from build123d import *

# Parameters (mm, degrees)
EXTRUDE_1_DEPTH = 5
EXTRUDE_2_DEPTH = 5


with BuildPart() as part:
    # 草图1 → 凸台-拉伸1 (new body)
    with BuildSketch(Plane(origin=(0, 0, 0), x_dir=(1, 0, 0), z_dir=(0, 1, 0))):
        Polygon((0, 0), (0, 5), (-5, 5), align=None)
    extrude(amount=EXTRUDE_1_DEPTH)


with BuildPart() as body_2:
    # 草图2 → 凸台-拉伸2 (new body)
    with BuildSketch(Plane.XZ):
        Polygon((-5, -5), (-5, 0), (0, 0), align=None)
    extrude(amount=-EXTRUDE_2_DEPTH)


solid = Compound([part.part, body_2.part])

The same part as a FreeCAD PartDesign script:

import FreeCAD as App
import Part
import Sketcher


def add_polygon(sketch, points):
    """Adds a closed chain of lines whose ends are joined by coincident constraints."""
    first, n = sketch.GeometryCount, len(points)
    for a, b in zip(points, points[1:] + points[:1]):
        sketch.addGeometry(Part.LineSegment(App.Vector(*a, 0), App.Vector(*b, 0)), False)
    for i in range(n):
        sketch.addConstraint(Sketcher.Constraint("Coincident", first + i, 2, first + (i + 1) % n, 1))

doc = App.newDocument("Part")
body = doc.addObject("PartDesign::Body", "Body")

# Sketch on XZ plane
sketch1 = body.newObject("Sketcher::SketchObject", "Sketch")
sketch1.AttachmentSupport = (doc.getObject("XZ_Plane"), [""])
sketch1.MapMode = "FlatFace"
add_polygon(sketch1, [(0, 0), (0, -5), (-5, -5)])  # lines 0-2
sketch1.addConstraint(Sketcher.Constraint("Vertical", 0))
sketch1.addConstraint(Sketcher.Constraint("Horizontal", 1))
sketch1.addConstraint(Sketcher.Constraint("Coincident", 2, 2, -1, 1))
sketch1.addConstraint(Sketcher.Constraint("Equal", 1, 0))
sketch1.addConstraint(Sketcher.Constraint("DistanceX", 1, 2, 1, 1, 5.0))
pad1 = body.newObject("PartDesign::Pad", "Pad")
pad1.Profile = sketch1
pad1.Length = 5
pad1.Reversed = True
body2 = doc.addObject("PartDesign::Body", "Body001")

# Sketch on XZ plane
sketch2 = body2.newObject("Sketcher::SketchObject", "Sketch001")
sketch2.AttachmentSupport = (doc.getObject("XZ_Plane001"), [""])
sketch2.MapMode = "FlatFace"
add_polygon(sketch2, [(-5, 0), (-5, -5), (0, 0)])  # lines 0-2
sketch2.addConstraint(Sketcher.Constraint("Vertical", 0))
sketch2.addConstraint(Sketcher.Constraint("Horizontal", 2))
sketch2.addConstraint(Sketcher.Constraint("Coincident", 1, 2, -1, 1))
sketch2.addConstraint(Sketcher.Constraint("Equal", 2, 0))
sketch2.addConstraint(Sketcher.Constraint("DistanceX", 2, 2, 2, 1, 5.0))
pad2 = body2.newObject("PartDesign::Pad", "Pad001")
pad2.Profile = sketch2
pad2.Length = 5
pad2.Reversed = True

doc.recompute()
